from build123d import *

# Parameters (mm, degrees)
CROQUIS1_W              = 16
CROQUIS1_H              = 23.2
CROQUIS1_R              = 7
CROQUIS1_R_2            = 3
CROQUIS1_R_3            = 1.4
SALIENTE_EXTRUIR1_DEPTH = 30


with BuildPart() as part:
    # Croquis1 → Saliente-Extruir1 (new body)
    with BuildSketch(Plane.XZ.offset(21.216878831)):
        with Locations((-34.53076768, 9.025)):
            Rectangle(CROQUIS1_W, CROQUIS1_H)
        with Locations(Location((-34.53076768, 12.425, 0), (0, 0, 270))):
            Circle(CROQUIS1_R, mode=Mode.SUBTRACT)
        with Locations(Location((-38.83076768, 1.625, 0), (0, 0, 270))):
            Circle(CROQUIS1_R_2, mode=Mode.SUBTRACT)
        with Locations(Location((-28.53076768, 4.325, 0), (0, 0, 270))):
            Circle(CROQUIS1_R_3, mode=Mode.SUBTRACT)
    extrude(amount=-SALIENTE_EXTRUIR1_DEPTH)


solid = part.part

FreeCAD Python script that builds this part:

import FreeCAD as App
import Part
import Sketcher
from FreeCAD import Vector
Q = App.Units.Quantity

doc = App.newDocument("Part")
body = doc.addObject("PartDesign::Body", "Body")

# Sketch on XZ plane
sketch1 = body.newObject("Sketcher::SketchObject", "Sketch")
sketch1.AttachmentSupport = (doc.getObject("XZ_Plane"), [""])
sketch1.MapMode = "FlatFace"
sketch1.AttachmentOffset = App.Placement(Vector(0, 0, 21.216879), App.Rotation())
sketch1.addGeometry([
    Part.LineSegment(Vector(-42.5, 20.6, 0), Vector(-42.5, -2.6, 0)),  # 0
    Part.LineSegment(Vector(-42.5, -2.6, 0), Vector(-26.5, -2.6, 0)),  # 1
    Part.LineSegment(Vector(-26.5, -2.6, 0), Vector(-26.5, 20.6, 0)),  # 2
    Part.LineSegment(Vector(-26.5, 20.6, 0), Vector(-42.5, 20.6, 0)),  # 3
    Part.Circle(Vector(-38.8, 1.6, 0), Vector(0, 0, 1), 3),  # 4
    Part.Circle(Vector(-28.5, 4.3, 0), Vector(0, 0, 1), 1.4),  # 5
    Part.Circle(Vector(-34.5, 12.4, 0), Vector(0, 0, 1), 7),  # 6
], False)
sketch1.addConstraint([
    Sketcher.Constraint("Coincident", 0, 2, 1, 1),
    Sketcher.Constraint("Coincident", 1, 2, 2, 1),
    Sketcher.Constraint("Coincident", 2, 2, 3, 1),
    Sketcher.Constraint("Coincident", 3, 2, 0, 1),
    Sketcher.Constraint("Vertical", 0),
    Sketcher.Constraint("Horizontal", 1),
    Sketcher.Constraint("Vertical", 2),
    Sketcher.Constraint("Horizontal", 3),
    Sketcher.Constraint("Diameter", 4, Q("6 mm")),
    Sketcher.Constraint("Diameter", 6, Q("14 mm")),
    Sketcher.Constraint("Diameter", 5, Q("2.8 mm")),
    Sketcher.Constraint("DistanceX", 1, 1, 1, 2, Q("16 mm")),
    Sketcher.Constraint("DistanceY", 0, 2, 0, 1, Q("23.2 mm")),
    Sketcher.Constraint("DistanceX", 6, 3, 5, 3, Q("6 mm")),
    Sketcher.Constraint("DistanceX", 0, 2, 5, 3, Q("14 mm")),
    Sketcher.Constraint("DistanceY", 0, 2, 6, 3, Q("15 mm")),
    Sketcher.Constraint("DistanceY", 4, 3, 2, 2, Q("19 mm")),
    Sketcher.Constraint("DistanceX", 4, 3, 5, 3, Q("10.3 mm")),
    Sketcher.Constraint("DistanceY", 4, 3, 5, 3, Q("2.7 mm")),
    Sketcher.Constraint("DistanceY", -1, 1, 4, 3, Q("1.625 mm")),
    Sketcher.Constraint("DistanceX", 4, 3, -1, 1, Q("38.830768 mm")),
])
pad1 = body.newObject("PartDesign::Pad", "Pad")
pad1.Profile = sketch1
pad1.Length = 30
pad1.Reversed = True

doc.recompute()
